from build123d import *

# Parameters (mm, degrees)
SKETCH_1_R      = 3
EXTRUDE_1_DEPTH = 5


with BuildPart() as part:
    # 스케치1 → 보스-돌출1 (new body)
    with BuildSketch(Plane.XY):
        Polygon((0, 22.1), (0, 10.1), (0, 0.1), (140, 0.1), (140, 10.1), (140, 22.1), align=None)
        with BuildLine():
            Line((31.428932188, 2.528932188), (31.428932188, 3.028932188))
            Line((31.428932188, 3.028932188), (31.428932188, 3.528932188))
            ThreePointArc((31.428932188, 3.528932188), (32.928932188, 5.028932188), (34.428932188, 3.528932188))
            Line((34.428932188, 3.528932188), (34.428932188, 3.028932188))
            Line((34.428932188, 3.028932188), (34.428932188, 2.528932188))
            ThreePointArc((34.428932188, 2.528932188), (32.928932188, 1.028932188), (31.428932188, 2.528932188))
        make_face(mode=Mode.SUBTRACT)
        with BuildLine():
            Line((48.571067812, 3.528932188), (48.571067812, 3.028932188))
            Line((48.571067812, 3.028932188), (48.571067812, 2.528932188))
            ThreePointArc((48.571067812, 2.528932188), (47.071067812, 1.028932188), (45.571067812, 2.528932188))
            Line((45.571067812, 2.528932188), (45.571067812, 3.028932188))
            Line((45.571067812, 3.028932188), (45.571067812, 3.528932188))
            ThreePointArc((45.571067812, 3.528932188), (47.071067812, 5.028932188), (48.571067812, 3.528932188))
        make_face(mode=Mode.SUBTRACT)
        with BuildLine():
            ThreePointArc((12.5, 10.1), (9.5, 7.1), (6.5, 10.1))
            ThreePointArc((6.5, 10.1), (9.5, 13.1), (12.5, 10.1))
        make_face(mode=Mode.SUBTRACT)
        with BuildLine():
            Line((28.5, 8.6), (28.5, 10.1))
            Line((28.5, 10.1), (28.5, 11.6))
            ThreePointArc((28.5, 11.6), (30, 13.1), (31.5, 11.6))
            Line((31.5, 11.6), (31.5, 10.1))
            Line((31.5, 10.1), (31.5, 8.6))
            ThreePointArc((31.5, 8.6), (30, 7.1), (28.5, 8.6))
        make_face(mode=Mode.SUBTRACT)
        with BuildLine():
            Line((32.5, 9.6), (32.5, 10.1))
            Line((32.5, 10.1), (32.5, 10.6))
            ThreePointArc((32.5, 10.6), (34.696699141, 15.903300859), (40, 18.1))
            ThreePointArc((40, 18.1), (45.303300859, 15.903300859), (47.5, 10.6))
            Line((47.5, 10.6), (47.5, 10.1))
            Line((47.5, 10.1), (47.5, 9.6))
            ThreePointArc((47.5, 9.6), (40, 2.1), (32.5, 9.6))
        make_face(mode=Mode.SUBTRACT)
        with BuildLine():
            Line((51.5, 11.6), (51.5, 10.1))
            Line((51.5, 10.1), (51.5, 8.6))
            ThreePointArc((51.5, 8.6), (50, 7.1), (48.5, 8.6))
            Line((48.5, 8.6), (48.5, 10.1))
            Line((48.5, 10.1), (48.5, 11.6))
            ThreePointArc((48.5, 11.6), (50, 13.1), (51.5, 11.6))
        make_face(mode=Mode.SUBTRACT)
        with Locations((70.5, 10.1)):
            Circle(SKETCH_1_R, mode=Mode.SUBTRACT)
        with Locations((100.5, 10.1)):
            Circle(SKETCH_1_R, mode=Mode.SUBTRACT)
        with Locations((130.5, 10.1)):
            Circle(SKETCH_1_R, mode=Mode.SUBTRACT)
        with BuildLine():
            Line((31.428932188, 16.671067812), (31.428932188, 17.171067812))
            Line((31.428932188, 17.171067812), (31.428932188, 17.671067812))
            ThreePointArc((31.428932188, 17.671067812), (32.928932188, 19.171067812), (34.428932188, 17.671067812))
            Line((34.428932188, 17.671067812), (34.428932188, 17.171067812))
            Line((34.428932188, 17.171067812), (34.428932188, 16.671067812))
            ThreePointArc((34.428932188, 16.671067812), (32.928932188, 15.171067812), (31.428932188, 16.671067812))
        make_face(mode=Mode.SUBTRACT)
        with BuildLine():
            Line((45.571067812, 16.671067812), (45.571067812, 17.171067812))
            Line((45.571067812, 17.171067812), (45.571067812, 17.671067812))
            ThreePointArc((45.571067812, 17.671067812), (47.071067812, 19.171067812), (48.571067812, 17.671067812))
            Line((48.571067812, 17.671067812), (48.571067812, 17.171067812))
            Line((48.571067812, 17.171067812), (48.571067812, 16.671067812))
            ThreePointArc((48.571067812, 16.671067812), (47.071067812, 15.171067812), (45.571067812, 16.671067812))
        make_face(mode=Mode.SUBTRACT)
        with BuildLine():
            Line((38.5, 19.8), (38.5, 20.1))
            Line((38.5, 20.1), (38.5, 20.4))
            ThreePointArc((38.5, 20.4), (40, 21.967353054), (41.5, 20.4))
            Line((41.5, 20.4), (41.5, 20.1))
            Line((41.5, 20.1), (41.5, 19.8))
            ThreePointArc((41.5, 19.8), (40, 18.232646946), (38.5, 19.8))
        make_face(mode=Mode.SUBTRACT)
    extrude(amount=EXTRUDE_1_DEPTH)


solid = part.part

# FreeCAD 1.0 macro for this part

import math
import FreeCAD as App
import Part
import Sketcher
from FreeCAD import Vector
Q = App.Units.Quantity

doc = App.newDocument("Part")
body = doc.addObject("PartDesign::Body", "Body")

# Sketch on XY plane
sketch1 = body.newObject("Sketcher::SketchObject", "Sketch")
sketch1.AttachmentSupport = (doc.getObject("XY_Plane"), [""])
sketch1.MapMode = "FlatFace"
sketch1.addGeometry(Part.LineSegment(Vector(0, 22.1, 0), Vector(0, 0.1, 0)), False)
sketch1.addGeometry(Part.LineSegment(Vector(0, 0.1, 0), Vector(140, 0.1, 0)), False)
sketch1.addGeometry(Part.LineSegment(Vector(140, 0.1, 0), Vector(140, 22.1, 0)), False)
sketch1.addGeometry(Part.LineSegment(Vector(140, 22.1, 0), Vector(0, 22.1, 0)), False)
sketch1.addGeometry(Part.ArcOfCircle(Part.Circle(Vector(32.928932, 2.528932, 0), Vector(0, 0, 1), 1.5), math.radians(180), math.radians(360)), False)
sketch1.addGeometry(Part.LineSegment(Vector(31.428932, 2.528932, 0), Vector(31.428932, 3.528932, 0)), False)
sketch1.addGeometry(Part.ArcOfCircle(Part.Circle(Vector(32.928932, 3.528932, 0), Vector(0, 0, 1), 1.5), math.radians(0), math.radians(180)), False)
sketch1.addGeometry(Part.LineSegment(Vector(34.428932, 3.528932, 0), Vector(34.428932, 2.528932, 0)), False)
sketch1.addGeometry(Part.ArcOfCircle(Part.Circle(Vector(47.071068, 3.528932, 0), Vector(0, 0, 1), 1.5), math.radians(0), math.radians(180)), False)
sketch1.addGeometry(Part.LineSegment(Vector(48.571068, 3.528932, 0), Vector(48.571068, 2.528932, 0)), False)
sketch1.addGeometry(Part.ArcOfCircle(Part.Circle(Vector(47.071068, 2.528932, 0), Vector(0, 0, 1), 1.5), math.radians(180), math.radians(360)), False)
sketch1.addGeometry(Part.LineSegment(Vector(45.571068, 2.528932, 0), Vector(45.571068, 3.528932, 0)), False)
sketch1.addGeometry(Part.Circle(Vector(9.5, 10.1, 0), Vector(0, 0, 1), 3), False)
sketch1.addGeometry(Part.ArcOfCircle(Part.Circle(Vector(30, 8.6, 0), Vector(0, 0, 1), 1.5), math.radians(180), math.radians(360)), False)
sketch1.addGeometry(Part.LineSegment(Vector(28.5, 8.6, 0), Vector(28.5, 11.6, 0)), False)
sketch1.addGeometry(Part.ArcOfCircle(Part.Circle(Vector(30, 11.6, 0), Vector(0, 0, 1), 1.5), math.radians(0), math.radians(180)), False)
sketch1.addGeometry(Part.LineSegment(Vector(31.5, 11.6, 0), Vector(31.5, 8.6, 0)), False)
sketch1.addGeometry(Part.ArcOfCircle(Part.Circle(Vector(40, 9.6, 0), Vector(0, 0, 1), 7.5), math.radians(180), math.radians(360)), False)
sketch1.addGeometry(Part.LineSegment(Vector(32.5, 9.6, 0), Vector(32.5, 10.6, 0)), False)
sketch1.addGeometry(Part.ArcOfCircle(Part.Circle(Vector(40, 10.6, 0), Vector(0, 0, 1), 7.5), math.radians(90), math.radians(180)), False)
sketch1.addGeometry(Part.ArcOfCircle(Part.Circle(Vector(40, 10.6, 0), Vector(0, 0, 1), 7.5), math.radians(0), math.radians(90)), False)
sketch1.addGeometry(Part.LineSegment(Vector(47.5, 10.6, 0), Vector(47.5, 9.6, 0)), False)
sketch1.addGeometry(Part.ArcOfCircle(Part.Circle(Vector(50, 11.6, 0), Vector(0, 0, 1), 1.5), math.radians(0), math.radians(180)), False)
sketch1.addGeometry(Part.LineSegment(Vector(51.5, 11.6, 0), Vector(51.5, 8.6, 0)), False)
sketch1.addGeometry(Part.ArcOfCircle(Part.Circle(Vector(50, 8.6, 0), Vector(0, 0, 1), 1.5), math.radians(180), math.radians(360)), False)
sketch1.addGeometry(Part.LineSegment(Vector(48.5, 8.6, 0), Vector(48.5, 11.6, 0)), False)
sketch1.addGeometry(Part.Circle(Vector(70.5, 10.1, 0), Vector(0, 0, 1), 3), False)
sketch1.addGeometry(Part.Circle(Vector(100.5, 10.1, 0), Vector(0, 0, 1), 3), False)
sketch1.addGeometry(Part.Circle(Vector(130.5, 10.1, 0), Vector(0, 0, 1), 3), False)
sketch1.addGeometry(Part.ArcOfCircle(Part.Circle(Vector(32.928932, 16.671068, 0), Vector(0, 0, 1), 1.5), math.radians(180), math.radians(360)), False)
sketch1.addGeometry(Part.LineSegment(Vector(31.428932, 16.671068, 0), Vector(31.428932, 17.671068, 0)), False)
sketch1.addGeometry(Part.ArcOfCircle(Part.Circle(Vector(32.928932, 17.671068, 0), Vector(0, 0, 1), 1.5), math.radians(0), math.radians(180)), False)
sketch1.addGeometry(Part.LineSegment(Vector(34.428932, 17.671068, 0), Vector(34.428932, 16.671068, 0)), False)
sketch1.addGeometry(Part.ArcOfCircle(Part.Circle(Vector(47.071068, 16.671068, 0), Vector(0, 0, 1), 1.5), math.radians(180), math.radians(360)), False)
sketch1.addGeometry(Part.LineSegment(Vector(45.571068, 16.671068, 0), Vector(45.571068, 17.671068, 0)), False)
sketch1.addGeometry(Part.ArcOfCircle(Part.Circle(Vector(47.071068, 17.671068, 0), Vector(0, 0, 1), 1.5), math.radians(0), math.radians(180)), False)
sketch1.addGeometry(Part.LineSegment(Vector(48.571068, 17.671068, 0), Vector(48.571068, 16.671068, 0)), False)
sketch1.addGeometry(Part.ArcOfCircle(Part.Circle(Vector(40, 19.734094, 0), Vector(0, 0, 1), 1.501447), math.radians(177.484199), math.radians(362.515801)), False)
sketch1.addGeometry(Part.LineSegment(Vector(38.5, 19.8, 0), Vector(38.5, 20.4, 0)), False)
sketch1.addGeometry(Part.ArcOfCircle(Part.Circle(Vector(40, 20.465906, 0), Vector(0, 0, 1), 1.501447), math.radians(-2.515801), math.radians(182.515801)), False)
sketch1.addGeometry(Part.LineSegment(Vector(41.5, 20.4, 0), Vector(41.5, 19.8, 0)), False)
sketch1.addConstraint(Sketcher.Constraint("Coincident", 0, 2, 1, 1))
sketch1.addConstraint(Sketcher.Constraint("Coincident", 1, 2, 2, 1))
sketch1.addConstraint(Sketcher.Constraint("Coincident", 2, 2, 3, 1))
sketch1.addConstraint(Sketcher.Constraint("Coincident", 3, 2, 0, 1))
sketch1.addConstraint(Sketcher.Constraint("Tangent", 4, 1, 5, 1))
sketch1.addConstraint(Sketcher.Constraint("Tangent", 5, 2, 6, 2))
sketch1.addConstraint(Sketcher.Constraint("Tangent", 6, 1, 7, 1))
sketch1.addConstraint(Sketcher.Constraint("Tangent", 7, 2, 4, 2))
sketch1.addConstraint(Sketcher.Constraint("Tangent", 8, 1, 9, 1))
sketch1.addConstraint(Sketcher.Constraint("Tangent", 9, 2, 10, 2))
sketch1.addConstraint(Sketcher.Constraint("Tangent", 10, 1, 11, 1))
sketch1.addConstraint(Sketcher.Constraint("Tangent", 11, 2, 8, 2))
sketch1.addConstraint(Sketcher.Constraint("Tangent", 13, 1, 14, 1))
sketch1.addConstraint(Sketcher.Constraint("Tangent", 14, 2, 15, 2))
sketch1.addConstraint(Sketcher.Constraint("Tangent", 15, 1, 16, 1))
sketch1.addConstraint(Sketcher.Constraint("Tangent", 16, 2, 13, 2))
sketch1.addConstraint(Sketcher.Constraint("Tangent", 17, 1, 18, 1))
sketch1.addConstraint(Sketcher.Constraint("Tangent", 18, 2, 19, 2))
sketch1.addConstraint(Sketcher.Constraint("Tangent", 19, 1, 20, 2))
sketch1.addConstraint(Sketcher.Constraint("Tangent", 20, 1, 21, 1))
sketch1.addConstraint(Sketcher.Constraint("Tangent", 21, 2, 17, 2))
sketch1.addConstraint(Sketcher.Constraint("Tangent", 22, 1, 23, 1))
sketch1.addConstraint(Sketcher.Constraint("Tangent", 23, 2, 24, 2))
sketch1.addConstraint(Sketcher.Constraint("Tangent", 24, 1, 25, 1))
sketch1.addConstraint(Sketcher.Constraint("Tangent", 25, 2, 22, 2))
sketch1.addConstraint(Sketcher.Constraint("Tangent", 29, 1, 30, 1))
sketch1.addConstraint(Sketcher.Constraint("Tangent", 30, 2, 31, 2))
sketch1.addConstraint(Sketcher.Constraint("Tangent", 31, 1, 32, 1))
sketch1.addConstraint(Sketcher.Constraint("Tangent", 32, 2, 29, 2))
sketch1.addConstraint(Sketcher.Constraint("Tangent", 33, 1, 34, 1))
sketch1.addConstraint(Sketcher.Constraint("Tangent", 34, 2, 35, 2))
sketch1.addConstraint(Sketcher.Constraint("Tangent", 35, 1, 36, 1))
sketch1.addConstraint(Sketcher.Constraint("Tangent", 36, 2, 33, 2))
sketch1.addConstraint(Sketcher.Constraint("Coincident", 37, 1, 38, 1))
sketch1.addConstraint(Sketcher.Constraint("Coincident", 38, 2, 39, 2))
sketch1.addConstraint(Sketcher.Constraint("Coincident", 39, 1, 40, 1))
sketch1.addConstraint(Sketcher.Constraint("Coincident", 40, 2, 37, 2))
sketch1.addConstraint(Sketcher.Constraint("Vertical", 0))
sketch1.addConstraint(Sketcher.Constraint("Horizontal", 1))
sketch1.addConstraint(Sketcher.Constraint("Vertical", 2))
sketch1.addConstraint(Sketcher.Constraint("Horizontal", 3))
sketch1.addConstraint(Sketcher.Constraint("Vertical", 5))
sketch1.addConstraint(Sketcher.Constraint("Vertical", 7))
sketch1.addConstraint(Sketcher.Constraint("Vertical", 9))
sketch1.addConstraint(Sketcher.Constraint("Vertical", 11))
sketch1.addConstraint(Sketcher.Constraint("Vertical", 14))
sketch1.addConstraint(Sketcher.Constraint("Vertical", 16))
sketch1.addConstraint(Sketcher.Constraint("Vertical", 18))
sketch1.addConstraint(Sketcher.Constraint("Vertical", 21))
sketch1.addConstraint(Sketcher.Constraint("Vertical", 23))
sketch1.addConstraint(Sketcher.Constraint("Vertical", 25))
sketch1.addConstraint(Sketcher.Constraint("Vertical", 30))
sketch1.addConstraint(Sketcher.Constraint("Vertical", 32))
sketch1.addConstraint(Sketcher.Constraint("Vertical", 34))
sketch1.addConstraint(Sketcher.Constraint("Vertical", 36))
sketch1.addConstraint(Sketcher.Constraint("Vertical", 38))
sketch1.addConstraint(Sketcher.Constraint("Vertical", 40))
sketch1.addConstraint(Sketcher.Constraint("Equal", 6, 8))
sketch1.addConstraint(Sketcher.Constraint("Equal", 10, 13))
sketch1.addConstraint(Sketcher.Constraint("Equal", 17, 19))
sketch1.addConstraint(Sketcher.Constraint("Equal", 15, 22))
sketch1.addConstraint(Sketcher.Constraint("Equal", 12, 26))
sketch1.addConstraint(Sketcher.Constraint("Equal", 26, 27))
sketch1.addConstraint(Sketcher.Constraint("Equal", 27, 28))
sketch1.addConstraint(Sketcher.Constraint("Equal", 24, 29))
sketch1.addConstraint(Sketcher.Constraint("Equal", 31, 33))
sketch1.addConstraint(Sketcher.Constraint("Equal", 37, 39))
sketch1.addConstraint(Sketcher.Constraint("PointOnObject", 0, 2, -2))
sketch1.addConstraint(Sketcher.Constraint("Horizontal", 6, 3, 8, 3))
sketch1.addConstraint(Sketcher.Constraint("Horizontal", 4, 3, 10, 3))
sketch1.addConstraint(Sketcher.Constraint("Horizontal", 15, 3, 22, 3))
sketch1.addConstraint(Sketcher.Constraint("Horizontal", 13, 3, 24, 3))
sketch1.addConstraint(Sketcher.Constraint("Horizontal", 12, 3, 26, 3))
sketch1.addConstraint(Sketcher.Constraint("Horizontal", 26, 3, 27, 3))
sketch1.addConstraint(Sketcher.Constraint("Horizontal", 27, 3, 28, 3))
sketch1.addConstraint(Sketcher.Constraint("Horizontal", 29, 3, 33, 3))
sketch1.addConstraint(Sketcher.Constraint("Horizontal", 31, 3, 35, 3))
sketch1.addConstraint(Sketcher.Constraint("Horizontal", 38, 2, 39, 1))
sketch1.addConstraint(Sketcher.Constraint("Horizontal", 37, 1, 40, 2))
sketch1.addConstraint(Sketcher.Constraint("Vertical", 6, 3, 29, 3))
sketch1.addConstraint(Sketcher.Constraint("Vertical", 10, 3, 33, 3))
sketch1.addConstraint(Sketcher.Constraint("Vertical", 20, 3, 37, 3))
sketch1.addConstraint(Sketcher.Constraint("Vertical", 39, 3, 19, 1))
sketch1.addConstraint(Sketcher.Constraint("Equal", 11, 18))
sketch1.addConstraint(Sketcher.Constraint("Equal", 21, 30))
sketch1.addConstraint(Sketcher.Constraint("Diameter", 12, Q("6 mm")))
sketch1.addConstraint(Sketcher.Constraint("Radius", 4, Q("1.5 mm")))
sketch1.addConstraint(Sketcher.Constraint("Radius", 17, Q("7.5 mm")))
sketch1.addConstraint(Sketcher.Constraint("DistanceX", 1, 1, 1, 2, Q("140 mm")))
sketch1.addConstraint(Sketcher.Constraint("DistanceY", 0, 2, 0, 1, Q("22 mm")))
sketch1.addConstraint(Sketcher.Constraint("DistanceY", 5, 1, 5, 2, Q("1 mm")))
sketch1.addConstraint(Sketcher.Constraint("DistanceY", 14, 1, 14, 2, Q("3 mm")))
sketch1.addConstraint(Sketcher.Constraint("DistanceY", 38, 1, 38, 2, Q("0.6 mm")))
sketch1.addConstraint(Sketcher.Constraint("DistanceX", -1, 1, 13, 3, Q("30 mm")))
sketch1.addConstraint(Sketcher.Constraint("DistanceX", -1, 1, 17, 3, Q("40 mm")))
sketch1.addConstraint(Sketcher.Constraint("DistanceX", -1, 1, 22, 3, Q("50 mm")))
sketch1.addConstraint(Sketcher.Constraint("DistanceY", 13, 3, 17, 3, Q("1 mm")))
sketch1.addConstraint(Sketcher.Constraint("DistanceX", 26, 3, 27, 3, Q("30 mm")))
sketch1.addConstraint(Sketcher.Constraint("DistanceX", 27, 3, 28, 3, Q("30 mm")))
sketch1.addConstraint(Sketcher.Constraint("DistanceY", 0, 2, 12, 3, Q("10 mm")))
sketch1.addConstraint(Sketcher.Constraint("DistanceX", 38, 2, 39, 1, Q("3 mm")))
sketch1.addConstraint(Sketcher.Constraint("DistanceX", -1, 1, 12, 3, Q("9.5 mm")))
sketch1.addConstraint(Sketcher.Constraint("DistanceY", -1, 1, 12, 3, Q("10.1 mm")))
sketch1.addConstraint(Sketcher.Constraint("DistanceY", -1, 1, 13, 3, Q("8.6 mm")))
sketch1.addConstraint(Sketcher.Constraint("DistanceX", -1, 1, 26, 3, Q("70.5 mm")))
sketch1.addConstraint(Sketcher.Constraint("DistanceY", -1, 1, 37, 1, Q("19.8 mm")))
sketch1.addConstraint(Sketcher.Constraint("Radius", 37, Q("1.501447 mm")))
sketch1.addConstraint(Sketcher.Constraint("DistanceY", 31, 3, 39, 3, Q("2.794838 mm")))
sketch1.addConstraint(Sketcher.Constraint("DistanceX", -1, 1, 4, 3, Q("32.928932 mm")))
sketch1.addConstraint(Sketcher.Constraint("DistanceY", -1, 1, 4, 3, Q("2.528932 mm")))
sketch1.addConstraint(Sketcher.Constraint("DistanceX", -1, 1, 8, 3, Q("47.071068 mm")))
pad1 = body.newObject("PartDesign::Pad", "Pad")
pad1.Profile = sketch1
pad1.Length = 5

doc.recompute()
